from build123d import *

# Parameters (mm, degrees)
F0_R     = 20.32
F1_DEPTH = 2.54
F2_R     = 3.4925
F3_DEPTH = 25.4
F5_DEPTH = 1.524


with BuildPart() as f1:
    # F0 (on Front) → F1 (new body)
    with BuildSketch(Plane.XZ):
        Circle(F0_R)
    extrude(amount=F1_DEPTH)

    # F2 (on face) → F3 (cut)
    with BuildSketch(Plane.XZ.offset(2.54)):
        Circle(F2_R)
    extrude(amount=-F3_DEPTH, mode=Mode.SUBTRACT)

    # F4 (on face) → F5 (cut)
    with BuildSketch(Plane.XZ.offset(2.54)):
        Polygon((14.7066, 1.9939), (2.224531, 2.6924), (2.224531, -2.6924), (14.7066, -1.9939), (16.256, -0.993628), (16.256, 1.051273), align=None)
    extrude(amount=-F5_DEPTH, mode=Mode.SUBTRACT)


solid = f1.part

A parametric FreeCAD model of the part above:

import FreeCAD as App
import Part
import Sketcher
from FreeCAD import Vector
Q = App.Units.Quantity

doc = App.newDocument("Part")
params = doc.addObject("Spreadsheet::Sheet", "Params")
for row, (alias, value) in enumerate([
    ("sketch1_diameter", "1.6 in"),
    ("pad1_length", "0.1 in"),
    ("sketch2_diameter", "0.275 in"),
    ("pocket1_length", "1 in"),
    ("sketch3_height", "0.212 in"),
    ("pocket2_length", "0.06 in"),
], start=1):
    params.set(f"A{row}", alias)
    params.set(f"B{row}", "=" + value)
    params.setAlias(f"B{row}", alias)

body = doc.addObject("PartDesign::Body", "Body")

# Sketch on XZ plane
sketch1 = body.newObject("Sketcher::SketchObject", "Sketch")
sketch1.AttachmentSupport = (doc.getObject("XZ_Plane"), [""])
sketch1.MapMode = "FlatFace"
sketch1.addGeometry(Part.Circle(Vector(0, 0, 0), Vector(0, 0, 1), 20), False)
sketch1.addConstraint(Sketcher.Constraint("Coincident", 0, 3, -1, 1))
sketch1.addConstraint(Sketcher.Constraint("Diameter", 0, Q("1.6 in")))
sketch1.setExpression("Constraints[1]", "Params.sketch1_diameter")
pad1 = body.newObject("PartDesign::Pad", "Pad")
pad1.Profile = sketch1
pad1.setExpression("Length", "Params.pad1_length")

# Sketch on XZ plane
sketch2 = body.newObject("Sketcher::SketchObject", "Sketch001")
sketch2.AttachmentSupport = (doc.getObject("XZ_Plane"), [""])
sketch2.MapMode = "FlatFace"
sketch2.AttachmentOffset = App.Placement(Vector(0, 0, 0.1 * 25.4), App.Rotation())
sketch2.addGeometry(Part.Circle(Vector(0, 0, 0), Vector(0, 0, 1), 3.5), False)
sketch2.addConstraint(Sketcher.Constraint("Coincident", 0, 3, -1, 1))
sketch2.addConstraint(Sketcher.Constraint("Diameter", 0, Q("0.275 in")))
sketch2.setExpression("Constraints[1]", "Params.sketch2_diameter")
pocket1 = body.newObject("PartDesign::Pocket", "Pocket")
pocket1.Profile = sketch2
pocket1.setExpression("Length", "Params.pocket1_length")

# Sketch on XZ plane
sketch3 = body.newObject("Sketcher::SketchObject", "Sketch002")
sketch3.AttachmentSupport = (doc.getObject("XZ_Plane"), [""])
sketch3.MapMode = "FlatFace"
sketch3.AttachmentOffset = App.Placement(Vector(0, 0, 0.1 * 25.4), App.Rotation())
sketch3.addGeometry(Part.LineSegment(Vector(14.7, 2, 0), Vector(2.2, 2.7, 0)), False)
sketch3.addGeometry(Part.LineSegment(Vector(2.2, 2.7, 0), Vector(2.2, -2.7, 0)), False)
sketch3.addGeometry(Part.LineSegment(Vector(2.2, -2.7, 0), Vector(14.7, -2, 0)), False)
sketch3.addGeometry(Part.LineSegment(Vector(14.7, -2, 0), Vector(16.3, -1, 0)), False)
sketch3.addGeometry(Part.LineSegment(Vector(16.3, -1, 0), Vector(16.3, 1.1, 0)), False)
sketch3.addGeometry(Part.LineSegment(Vector(16.3, 1.1, 0), Vector(14.7, 2, 0)), False)
sketch3.addConstraint(Sketcher.Constraint("Coincident", 0, 2, 1, 1))
sketch3.addConstraint(Sketcher.Constraint("Coincident", 1, 2, 2, 1))
sketch3.addConstraint(Sketcher.Constraint("Coincident", 2, 2, 3, 1))
sketch3.addConstraint(Sketcher.Constraint("Coincident", 3, 2, 4, 1))
sketch3.addConstraint(Sketcher.Constraint("Coincident", 4, 2, 5, 1))
sketch3.addConstraint(Sketcher.Constraint("Coincident", 5, 2, 0, 1))
sketch3.addConstraint(Sketcher.Constraint("Vertical", 1))
sketch3.addConstraint(Sketcher.Constraint("Vertical", 4))
sketch3.addConstraint(Sketcher.Constraint("Symmetric", 2, 2, 5, 2, -1))
sketch3.addConstraint(Sketcher.Constraint("Equal", 0, 2))
sketch3.addConstraint(Sketcher.Constraint("DistanceY", 1, 2, 1, 1, Q("0.212 in")))
sketch3.addConstraint(Sketcher.Constraint("DistanceX", -1, 1, 3, 2, Q("0.64 in")))
sketch3.addConstraint(Sketcher.Constraint("DistanceX", -1, 1, 2, 2, Q("0.579 in")))
sketch3.addConstraint(Sketcher.Constraint("DistanceY", 2, 2, 5, 2, Q("0.157 in")))
sketch3.addConstraint(Sketcher.Constraint("DistanceY", 4, 1, 4, 2, Q("2.044901 mm")))
sketch3.addConstraint(Sketcher.Constraint("Distance", 3, Q("1.84423 mm")))
sketch3.addConstraint(Sketcher.Constraint("DistanceX", -1, 1, 0, 2, Q("2.224531 mm")))
sketch3.setExpression("Constraints[10]", "Params.sketch3_height")
pocket2 = body.newObject("PartDesign::Pocket", "Pocket001")
pocket2.Profile = sketch3
pocket2.setExpression("Length", "Params.pocket2_length")

doc.recompute()
